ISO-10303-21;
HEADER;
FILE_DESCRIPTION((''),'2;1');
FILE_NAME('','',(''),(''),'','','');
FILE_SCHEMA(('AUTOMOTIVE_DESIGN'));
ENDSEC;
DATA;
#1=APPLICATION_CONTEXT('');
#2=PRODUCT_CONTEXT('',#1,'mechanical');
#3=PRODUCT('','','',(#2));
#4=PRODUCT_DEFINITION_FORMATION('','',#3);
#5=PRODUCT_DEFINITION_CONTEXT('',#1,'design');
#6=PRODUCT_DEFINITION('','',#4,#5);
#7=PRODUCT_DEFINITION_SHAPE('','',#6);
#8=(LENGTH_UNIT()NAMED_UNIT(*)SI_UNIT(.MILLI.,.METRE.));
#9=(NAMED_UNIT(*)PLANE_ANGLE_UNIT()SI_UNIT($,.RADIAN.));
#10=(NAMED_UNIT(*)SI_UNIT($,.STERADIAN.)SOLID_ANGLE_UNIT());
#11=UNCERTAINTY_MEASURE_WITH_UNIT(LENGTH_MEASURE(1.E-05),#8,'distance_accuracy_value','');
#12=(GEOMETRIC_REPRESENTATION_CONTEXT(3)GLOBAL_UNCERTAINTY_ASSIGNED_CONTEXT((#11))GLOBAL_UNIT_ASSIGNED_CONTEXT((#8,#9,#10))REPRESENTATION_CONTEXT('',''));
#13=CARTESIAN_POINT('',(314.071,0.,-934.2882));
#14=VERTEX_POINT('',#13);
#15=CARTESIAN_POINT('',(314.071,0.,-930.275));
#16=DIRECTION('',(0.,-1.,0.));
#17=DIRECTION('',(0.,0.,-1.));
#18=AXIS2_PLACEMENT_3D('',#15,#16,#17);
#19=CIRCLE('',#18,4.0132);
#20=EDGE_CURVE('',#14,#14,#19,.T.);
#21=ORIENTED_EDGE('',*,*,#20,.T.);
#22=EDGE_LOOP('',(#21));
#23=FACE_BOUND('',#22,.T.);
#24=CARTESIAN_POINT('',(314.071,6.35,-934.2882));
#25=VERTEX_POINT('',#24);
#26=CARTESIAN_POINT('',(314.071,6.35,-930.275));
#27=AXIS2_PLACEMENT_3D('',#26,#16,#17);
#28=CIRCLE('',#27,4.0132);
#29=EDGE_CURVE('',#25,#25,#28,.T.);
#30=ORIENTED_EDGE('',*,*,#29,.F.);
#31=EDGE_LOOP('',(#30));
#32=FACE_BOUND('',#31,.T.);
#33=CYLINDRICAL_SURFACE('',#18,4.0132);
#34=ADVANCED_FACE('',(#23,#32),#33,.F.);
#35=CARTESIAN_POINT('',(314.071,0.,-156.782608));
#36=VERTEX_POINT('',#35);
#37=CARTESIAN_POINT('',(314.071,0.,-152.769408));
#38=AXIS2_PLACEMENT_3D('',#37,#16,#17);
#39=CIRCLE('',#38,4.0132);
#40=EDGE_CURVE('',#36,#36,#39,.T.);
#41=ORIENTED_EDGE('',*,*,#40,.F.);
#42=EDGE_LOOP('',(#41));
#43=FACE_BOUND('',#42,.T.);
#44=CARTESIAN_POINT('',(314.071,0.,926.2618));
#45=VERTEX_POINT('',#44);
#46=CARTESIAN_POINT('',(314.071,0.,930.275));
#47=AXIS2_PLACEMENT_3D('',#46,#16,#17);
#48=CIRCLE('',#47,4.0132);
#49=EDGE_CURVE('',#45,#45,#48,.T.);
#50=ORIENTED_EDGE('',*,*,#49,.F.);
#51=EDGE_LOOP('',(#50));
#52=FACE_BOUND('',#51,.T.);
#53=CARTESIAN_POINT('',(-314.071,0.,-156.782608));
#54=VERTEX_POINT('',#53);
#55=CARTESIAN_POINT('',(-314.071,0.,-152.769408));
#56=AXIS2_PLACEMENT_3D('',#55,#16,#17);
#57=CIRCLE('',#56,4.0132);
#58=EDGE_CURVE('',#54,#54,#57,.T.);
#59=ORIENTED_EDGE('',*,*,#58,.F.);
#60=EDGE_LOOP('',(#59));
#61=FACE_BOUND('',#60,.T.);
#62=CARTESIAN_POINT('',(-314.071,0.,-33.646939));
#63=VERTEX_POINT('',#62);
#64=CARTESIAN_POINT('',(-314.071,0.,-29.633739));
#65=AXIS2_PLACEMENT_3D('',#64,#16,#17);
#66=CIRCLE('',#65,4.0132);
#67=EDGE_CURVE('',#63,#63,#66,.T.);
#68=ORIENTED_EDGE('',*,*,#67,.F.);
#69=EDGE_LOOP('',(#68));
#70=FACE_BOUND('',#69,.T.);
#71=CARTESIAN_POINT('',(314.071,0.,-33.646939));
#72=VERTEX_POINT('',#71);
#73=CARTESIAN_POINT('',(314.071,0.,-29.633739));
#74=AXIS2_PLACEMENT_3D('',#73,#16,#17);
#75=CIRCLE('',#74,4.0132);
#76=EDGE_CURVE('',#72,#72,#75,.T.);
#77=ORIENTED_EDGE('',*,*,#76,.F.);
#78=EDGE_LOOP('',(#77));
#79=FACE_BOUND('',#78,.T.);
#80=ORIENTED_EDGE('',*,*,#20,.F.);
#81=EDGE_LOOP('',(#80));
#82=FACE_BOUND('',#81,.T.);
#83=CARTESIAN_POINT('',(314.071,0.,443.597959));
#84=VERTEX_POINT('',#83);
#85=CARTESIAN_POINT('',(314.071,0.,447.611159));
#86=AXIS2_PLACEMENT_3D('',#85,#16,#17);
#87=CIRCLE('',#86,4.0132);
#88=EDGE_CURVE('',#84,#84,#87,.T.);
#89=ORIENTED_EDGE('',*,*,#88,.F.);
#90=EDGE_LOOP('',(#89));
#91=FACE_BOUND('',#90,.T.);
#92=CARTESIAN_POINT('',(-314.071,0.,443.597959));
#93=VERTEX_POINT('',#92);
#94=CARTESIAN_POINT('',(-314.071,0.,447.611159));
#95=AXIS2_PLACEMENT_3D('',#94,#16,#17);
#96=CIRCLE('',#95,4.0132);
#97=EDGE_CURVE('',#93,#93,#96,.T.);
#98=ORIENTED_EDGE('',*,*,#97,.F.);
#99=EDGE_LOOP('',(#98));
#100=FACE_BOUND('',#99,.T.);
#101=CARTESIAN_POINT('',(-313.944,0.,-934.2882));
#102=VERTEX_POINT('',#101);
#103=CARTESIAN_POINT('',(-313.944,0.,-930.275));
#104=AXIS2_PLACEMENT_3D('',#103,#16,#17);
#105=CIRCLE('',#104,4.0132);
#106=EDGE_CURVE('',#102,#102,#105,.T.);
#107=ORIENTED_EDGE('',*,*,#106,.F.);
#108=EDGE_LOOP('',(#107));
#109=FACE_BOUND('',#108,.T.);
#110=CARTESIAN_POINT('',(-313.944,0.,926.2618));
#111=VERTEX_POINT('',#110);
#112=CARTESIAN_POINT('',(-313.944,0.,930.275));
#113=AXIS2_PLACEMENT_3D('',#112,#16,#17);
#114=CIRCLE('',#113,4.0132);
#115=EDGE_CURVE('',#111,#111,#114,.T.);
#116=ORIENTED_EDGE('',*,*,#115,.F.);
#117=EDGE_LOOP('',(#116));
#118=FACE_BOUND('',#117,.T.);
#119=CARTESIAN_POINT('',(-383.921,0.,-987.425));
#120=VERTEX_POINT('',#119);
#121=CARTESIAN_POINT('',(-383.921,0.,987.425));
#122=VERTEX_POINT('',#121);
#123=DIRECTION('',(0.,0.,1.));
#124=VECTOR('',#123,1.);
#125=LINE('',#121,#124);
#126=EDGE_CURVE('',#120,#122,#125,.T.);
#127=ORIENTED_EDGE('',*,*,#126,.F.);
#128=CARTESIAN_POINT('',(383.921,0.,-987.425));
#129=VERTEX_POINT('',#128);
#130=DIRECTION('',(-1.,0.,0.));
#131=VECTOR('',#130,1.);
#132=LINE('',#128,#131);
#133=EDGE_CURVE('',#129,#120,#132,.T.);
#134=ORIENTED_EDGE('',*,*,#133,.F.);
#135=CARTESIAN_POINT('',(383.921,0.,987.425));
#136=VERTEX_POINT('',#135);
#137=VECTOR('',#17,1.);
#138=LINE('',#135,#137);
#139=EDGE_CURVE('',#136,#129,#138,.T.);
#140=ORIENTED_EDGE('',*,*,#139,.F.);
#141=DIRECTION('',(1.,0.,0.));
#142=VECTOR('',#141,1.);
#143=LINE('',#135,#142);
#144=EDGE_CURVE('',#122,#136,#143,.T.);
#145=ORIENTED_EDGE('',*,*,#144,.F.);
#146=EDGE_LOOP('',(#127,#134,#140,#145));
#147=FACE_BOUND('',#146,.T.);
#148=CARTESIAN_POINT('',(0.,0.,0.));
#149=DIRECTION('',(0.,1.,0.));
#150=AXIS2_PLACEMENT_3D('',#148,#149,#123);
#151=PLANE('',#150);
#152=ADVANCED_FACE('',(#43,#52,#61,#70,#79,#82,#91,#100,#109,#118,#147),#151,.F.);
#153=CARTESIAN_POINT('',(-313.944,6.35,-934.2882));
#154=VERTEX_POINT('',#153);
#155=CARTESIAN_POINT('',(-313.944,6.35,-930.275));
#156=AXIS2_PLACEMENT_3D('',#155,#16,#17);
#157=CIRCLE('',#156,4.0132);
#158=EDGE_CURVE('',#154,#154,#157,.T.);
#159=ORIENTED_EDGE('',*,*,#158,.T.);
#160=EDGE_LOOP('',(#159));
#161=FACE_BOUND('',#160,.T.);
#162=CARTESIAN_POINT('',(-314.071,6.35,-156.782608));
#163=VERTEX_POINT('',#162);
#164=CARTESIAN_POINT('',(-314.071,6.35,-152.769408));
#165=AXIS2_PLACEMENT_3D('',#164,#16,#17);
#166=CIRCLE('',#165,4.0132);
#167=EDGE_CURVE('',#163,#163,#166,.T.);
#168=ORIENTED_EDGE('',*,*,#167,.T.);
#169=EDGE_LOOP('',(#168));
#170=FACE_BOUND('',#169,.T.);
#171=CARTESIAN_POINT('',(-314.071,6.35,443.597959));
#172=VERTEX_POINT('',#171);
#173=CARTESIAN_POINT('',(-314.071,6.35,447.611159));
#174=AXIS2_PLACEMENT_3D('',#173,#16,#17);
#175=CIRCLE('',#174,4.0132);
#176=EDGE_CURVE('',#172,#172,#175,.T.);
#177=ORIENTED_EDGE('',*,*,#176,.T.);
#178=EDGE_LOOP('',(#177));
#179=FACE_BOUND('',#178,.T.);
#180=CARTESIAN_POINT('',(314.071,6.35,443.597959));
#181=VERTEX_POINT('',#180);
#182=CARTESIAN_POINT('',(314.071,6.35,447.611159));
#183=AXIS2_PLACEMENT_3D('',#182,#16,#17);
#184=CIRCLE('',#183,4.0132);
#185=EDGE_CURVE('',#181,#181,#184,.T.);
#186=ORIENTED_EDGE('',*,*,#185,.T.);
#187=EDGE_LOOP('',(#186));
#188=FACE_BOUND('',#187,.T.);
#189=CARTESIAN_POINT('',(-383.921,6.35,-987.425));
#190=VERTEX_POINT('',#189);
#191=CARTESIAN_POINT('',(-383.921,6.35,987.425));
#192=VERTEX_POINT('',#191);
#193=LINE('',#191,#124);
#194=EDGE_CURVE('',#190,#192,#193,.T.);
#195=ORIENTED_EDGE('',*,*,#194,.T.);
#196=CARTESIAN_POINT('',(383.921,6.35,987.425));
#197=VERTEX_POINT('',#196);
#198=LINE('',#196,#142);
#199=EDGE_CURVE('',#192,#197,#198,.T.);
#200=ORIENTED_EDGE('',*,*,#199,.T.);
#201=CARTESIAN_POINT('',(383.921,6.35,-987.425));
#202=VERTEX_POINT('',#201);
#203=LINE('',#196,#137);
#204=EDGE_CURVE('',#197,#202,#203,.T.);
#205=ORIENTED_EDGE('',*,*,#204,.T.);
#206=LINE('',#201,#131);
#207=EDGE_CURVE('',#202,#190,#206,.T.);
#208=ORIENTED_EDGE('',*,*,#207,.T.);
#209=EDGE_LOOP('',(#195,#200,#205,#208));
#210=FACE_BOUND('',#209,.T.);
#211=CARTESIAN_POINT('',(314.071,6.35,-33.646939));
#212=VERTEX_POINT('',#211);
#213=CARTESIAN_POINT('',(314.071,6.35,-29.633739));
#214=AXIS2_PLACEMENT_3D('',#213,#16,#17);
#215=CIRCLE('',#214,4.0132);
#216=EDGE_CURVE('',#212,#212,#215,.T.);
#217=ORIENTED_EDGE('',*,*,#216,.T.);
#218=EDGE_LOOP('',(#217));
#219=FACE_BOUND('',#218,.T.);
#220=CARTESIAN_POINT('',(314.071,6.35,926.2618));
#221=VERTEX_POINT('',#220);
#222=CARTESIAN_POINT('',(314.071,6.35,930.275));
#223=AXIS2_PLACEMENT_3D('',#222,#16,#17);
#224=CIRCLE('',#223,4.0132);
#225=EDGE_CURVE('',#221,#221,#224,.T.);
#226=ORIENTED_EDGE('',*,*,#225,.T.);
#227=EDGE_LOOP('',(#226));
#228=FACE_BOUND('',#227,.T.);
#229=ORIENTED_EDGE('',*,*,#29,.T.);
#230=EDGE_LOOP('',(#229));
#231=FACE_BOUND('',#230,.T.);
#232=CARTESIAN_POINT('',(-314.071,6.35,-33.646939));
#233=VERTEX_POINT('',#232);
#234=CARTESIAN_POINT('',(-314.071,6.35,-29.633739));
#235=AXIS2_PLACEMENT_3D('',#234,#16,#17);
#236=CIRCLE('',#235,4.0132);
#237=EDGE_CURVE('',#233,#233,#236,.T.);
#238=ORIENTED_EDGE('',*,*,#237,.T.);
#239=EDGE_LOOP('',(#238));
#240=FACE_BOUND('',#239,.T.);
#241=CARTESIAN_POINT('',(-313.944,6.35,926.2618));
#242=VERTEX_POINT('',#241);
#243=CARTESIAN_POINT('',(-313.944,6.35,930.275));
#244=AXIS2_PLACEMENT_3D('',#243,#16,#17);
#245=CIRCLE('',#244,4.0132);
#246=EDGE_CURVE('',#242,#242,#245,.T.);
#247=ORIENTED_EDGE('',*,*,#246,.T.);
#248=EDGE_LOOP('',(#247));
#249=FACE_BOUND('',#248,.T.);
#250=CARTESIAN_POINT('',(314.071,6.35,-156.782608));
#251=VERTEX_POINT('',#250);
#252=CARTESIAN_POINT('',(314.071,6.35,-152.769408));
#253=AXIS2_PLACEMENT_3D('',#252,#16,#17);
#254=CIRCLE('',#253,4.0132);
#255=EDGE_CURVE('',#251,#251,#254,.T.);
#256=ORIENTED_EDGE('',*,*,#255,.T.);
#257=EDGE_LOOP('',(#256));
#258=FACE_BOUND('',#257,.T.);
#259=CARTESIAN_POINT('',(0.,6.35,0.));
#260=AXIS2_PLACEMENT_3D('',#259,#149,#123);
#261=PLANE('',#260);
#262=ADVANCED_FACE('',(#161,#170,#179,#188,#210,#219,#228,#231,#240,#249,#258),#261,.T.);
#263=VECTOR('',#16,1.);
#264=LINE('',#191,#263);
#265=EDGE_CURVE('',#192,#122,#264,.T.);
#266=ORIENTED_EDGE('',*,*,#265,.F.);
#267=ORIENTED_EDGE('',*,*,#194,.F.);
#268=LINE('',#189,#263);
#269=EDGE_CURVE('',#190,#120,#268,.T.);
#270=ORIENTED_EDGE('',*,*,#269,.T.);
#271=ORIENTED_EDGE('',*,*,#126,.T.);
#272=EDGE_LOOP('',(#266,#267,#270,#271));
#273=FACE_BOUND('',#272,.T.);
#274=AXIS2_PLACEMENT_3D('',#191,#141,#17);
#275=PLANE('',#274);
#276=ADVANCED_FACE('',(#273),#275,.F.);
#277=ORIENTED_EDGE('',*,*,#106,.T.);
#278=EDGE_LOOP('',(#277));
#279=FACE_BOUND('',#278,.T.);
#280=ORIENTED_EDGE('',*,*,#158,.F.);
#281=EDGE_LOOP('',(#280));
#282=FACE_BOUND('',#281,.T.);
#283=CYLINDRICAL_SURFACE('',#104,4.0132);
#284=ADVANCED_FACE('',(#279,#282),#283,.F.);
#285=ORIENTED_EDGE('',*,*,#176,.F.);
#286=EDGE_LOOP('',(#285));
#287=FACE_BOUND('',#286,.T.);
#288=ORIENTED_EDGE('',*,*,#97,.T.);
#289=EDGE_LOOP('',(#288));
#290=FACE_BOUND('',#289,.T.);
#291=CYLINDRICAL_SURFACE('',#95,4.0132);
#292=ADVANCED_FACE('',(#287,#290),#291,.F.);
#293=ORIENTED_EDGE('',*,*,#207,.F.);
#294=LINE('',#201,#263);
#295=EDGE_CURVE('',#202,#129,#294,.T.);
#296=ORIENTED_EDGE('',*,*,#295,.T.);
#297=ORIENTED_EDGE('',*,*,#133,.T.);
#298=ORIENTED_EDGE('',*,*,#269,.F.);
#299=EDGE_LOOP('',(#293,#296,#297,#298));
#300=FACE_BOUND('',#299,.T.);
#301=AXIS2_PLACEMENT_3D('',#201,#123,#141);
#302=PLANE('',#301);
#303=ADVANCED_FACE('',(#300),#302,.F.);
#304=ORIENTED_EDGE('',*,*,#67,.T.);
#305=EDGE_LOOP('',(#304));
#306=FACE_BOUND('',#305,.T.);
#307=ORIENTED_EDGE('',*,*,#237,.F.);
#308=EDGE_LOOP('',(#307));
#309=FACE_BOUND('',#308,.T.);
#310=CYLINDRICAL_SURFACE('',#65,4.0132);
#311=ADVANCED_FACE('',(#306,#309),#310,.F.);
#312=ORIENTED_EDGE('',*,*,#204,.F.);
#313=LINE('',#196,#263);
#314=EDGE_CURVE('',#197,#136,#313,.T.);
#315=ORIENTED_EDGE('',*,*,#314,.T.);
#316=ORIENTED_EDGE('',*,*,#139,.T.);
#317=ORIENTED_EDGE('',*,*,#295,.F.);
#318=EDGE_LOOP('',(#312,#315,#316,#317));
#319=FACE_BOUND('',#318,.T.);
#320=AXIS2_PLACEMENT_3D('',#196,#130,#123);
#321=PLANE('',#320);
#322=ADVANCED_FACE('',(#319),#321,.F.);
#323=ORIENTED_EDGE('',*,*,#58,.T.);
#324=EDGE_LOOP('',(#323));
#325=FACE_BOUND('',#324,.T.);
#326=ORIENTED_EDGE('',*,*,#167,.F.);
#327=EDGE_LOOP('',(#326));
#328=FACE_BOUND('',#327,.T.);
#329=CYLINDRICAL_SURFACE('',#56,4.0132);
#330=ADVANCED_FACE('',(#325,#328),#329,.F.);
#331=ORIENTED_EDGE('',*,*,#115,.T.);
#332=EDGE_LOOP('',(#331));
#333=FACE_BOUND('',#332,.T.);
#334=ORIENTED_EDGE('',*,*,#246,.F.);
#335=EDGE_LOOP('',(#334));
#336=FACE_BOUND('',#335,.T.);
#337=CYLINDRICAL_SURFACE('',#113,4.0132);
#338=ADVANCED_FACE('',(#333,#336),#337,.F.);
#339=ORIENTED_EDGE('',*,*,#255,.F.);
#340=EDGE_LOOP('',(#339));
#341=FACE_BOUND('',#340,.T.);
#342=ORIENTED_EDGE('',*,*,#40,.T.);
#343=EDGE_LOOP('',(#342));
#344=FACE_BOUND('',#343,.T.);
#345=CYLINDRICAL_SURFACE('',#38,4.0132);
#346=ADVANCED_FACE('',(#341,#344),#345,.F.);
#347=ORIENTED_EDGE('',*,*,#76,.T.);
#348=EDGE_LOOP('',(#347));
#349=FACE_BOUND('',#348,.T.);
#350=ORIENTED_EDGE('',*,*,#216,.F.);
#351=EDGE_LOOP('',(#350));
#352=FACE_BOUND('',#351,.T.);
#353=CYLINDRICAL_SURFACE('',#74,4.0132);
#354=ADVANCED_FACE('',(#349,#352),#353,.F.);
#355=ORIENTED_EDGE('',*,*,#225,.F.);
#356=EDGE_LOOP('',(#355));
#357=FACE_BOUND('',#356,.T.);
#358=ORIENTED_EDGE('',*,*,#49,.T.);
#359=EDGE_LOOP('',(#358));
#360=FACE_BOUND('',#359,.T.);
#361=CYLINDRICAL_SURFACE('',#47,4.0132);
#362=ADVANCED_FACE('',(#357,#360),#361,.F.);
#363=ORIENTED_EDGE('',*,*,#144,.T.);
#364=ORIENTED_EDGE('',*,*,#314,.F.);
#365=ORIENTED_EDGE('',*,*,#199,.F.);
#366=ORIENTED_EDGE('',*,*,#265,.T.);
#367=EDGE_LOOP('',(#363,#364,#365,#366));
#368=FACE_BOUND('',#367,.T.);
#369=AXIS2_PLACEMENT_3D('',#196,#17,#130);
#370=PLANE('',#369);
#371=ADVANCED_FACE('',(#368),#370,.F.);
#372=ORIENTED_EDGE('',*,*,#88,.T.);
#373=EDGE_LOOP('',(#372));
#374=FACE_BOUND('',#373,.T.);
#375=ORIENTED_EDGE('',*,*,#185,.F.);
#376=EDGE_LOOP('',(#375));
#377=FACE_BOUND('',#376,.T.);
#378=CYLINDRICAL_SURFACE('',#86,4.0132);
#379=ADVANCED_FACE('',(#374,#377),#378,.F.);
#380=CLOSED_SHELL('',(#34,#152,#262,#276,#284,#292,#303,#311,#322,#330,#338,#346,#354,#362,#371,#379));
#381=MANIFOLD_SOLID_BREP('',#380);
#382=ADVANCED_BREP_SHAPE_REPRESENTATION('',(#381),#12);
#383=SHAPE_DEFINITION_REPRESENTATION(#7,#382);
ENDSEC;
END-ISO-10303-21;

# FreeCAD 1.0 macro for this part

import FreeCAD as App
import Part
import Sketcher
from FreeCAD import Vector
Q = App.Units.Quantity

doc = App.newDocument("Part")
params = doc.addObject("Spreadsheet::Sheet", "Params")
for row, (alias, value) in enumerate([
    ("sketch1_width", "30.23 in"),
    ("sketch1_height", "77.75 in"),
    ("pad1_length", "0.25 in"),
    ("sketch2_diameter", "0.316 in"),
    ("hole_diameter", "0.316 in"),
], start=1):
    params.set(f"A{row}", alias)
    params.set(f"B{row}", "=" + value)
    params.setAlias(f"B{row}", alias)

body = doc.addObject("PartDesign::Body", "Body")

# Sketch on XZ plane
sketch1 = doc.addObject("Sketcher::SketchObject", "Sketch")
body.addObject(sketch1)
sketch1.AttachmentSupport = (doc.XZ_Plane, [""])
sketch1.MapMode = "FlatFace"
sketch1.addGeometry(Part.LineSegment(Vector(-384, -987, 0), Vector(-384, 987, 0)), False)
sketch1.addGeometry(Part.LineSegment(Vector(-384, 987, 0), Vector(384, 987, 0)), False)
sketch1.addGeometry(Part.LineSegment(Vector(384, 987, 0), Vector(384, -987, 0)), False)
sketch1.addGeometry(Part.LineSegment(Vector(384, -987, 0), Vector(-384, -987, 0)), False)
sketch1.addConstraint(Sketcher.Constraint("Coincident", 0, 2, 1, 1))
sketch1.addConstraint(Sketcher.Constraint("Coincident", 1, 2, 2, 1))
sketch1.addConstraint(Sketcher.Constraint("Coincident", 2, 2, 3, 1))
sketch1.addConstraint(Sketcher.Constraint("Coincident", 3, 2, 0, 1))
sketch1.addConstraint(Sketcher.Constraint("Vertical", 0))
sketch1.addConstraint(Sketcher.Constraint("Horizontal", 1))
sketch1.addConstraint(Sketcher.Constraint("Vertical", 2))
sketch1.addConstraint(Sketcher.Constraint("Horizontal", 3))
sketch1.addConstraint(Sketcher.Constraint("Symmetric", 0, 2, 2, 2, -1, 1))
sketch1.addConstraint(Sketcher.Constraint("DistanceX", 1, 1, 1, 2, Q("30.23 in")))
sketch1.addConstraint(Sketcher.Constraint("DistanceY", 0, 1, 0, 2, Q("77.75 in")))
sketch1.setExpression("Constraints[9]", "Params.sketch1_width")
sketch1.setExpression("Constraints[10]", "Params.sketch1_height")
pad1 = doc.addObject("PartDesign::Pad", "Pad")
body.addObject(pad1)
pad1.Profile = sketch1
pad1.setExpression("Length", "Params.pad1_length")
pad1.Reversed = True

# Sketch on XZ plane
sketch2 = doc.addObject("Sketcher::SketchObject", "Sketch001")
body.addObject(sketch2)
sketch2.AttachmentSupport = (doc.XZ_Plane, [""])
sketch2.MapMode = "FlatFace"
sketch2.addGeometry(Part.Circle(Vector(314.1, 930.3, 0), Vector(0, 0, 1), 4), False)
sketch2.addGeometry(Part.Circle(Vector(-313.9, 930.3, 0), Vector(0, 0, 1), 4), False)
sketch2.addGeometry(Part.Circle(Vector(314.1, -29.6, 0), Vector(0, 0, 1), 4), False)
sketch2.addGeometry(Part.Circle(Vector(-314.1, -29.6, 0), Vector(0, 0, 1), 4), False)
sketch2.addGeometry(Part.Circle(Vector(-313.9, -930.3, 0), Vector(0, 0, 1), 4), False)
sketch2.addGeometry(Part.Circle(Vector(314.1, -930.3, 0), Vector(0, 0, 1), 4), False)
sketch2.addGeometry(Part.Circle(Vector(314.1, -152.8, 0), Vector(0, 0, 1), 4), False)
sketch2.addGeometry(Part.Circle(Vector(-314.1, -152.8, 0), Vector(0, 0, 1), 4), False)
sketch2.addGeometry(Part.Circle(Vector(314.1, 447.6, 0), Vector(0, 0, 1), 4), False)
sketch2.addGeometry(Part.Circle(Vector(-314.1, 447.6, 0), Vector(0, 0, 1), 4), False)
sketch2.addConstraint(Sketcher.Constraint("Equal", 0, 1))
sketch2.addConstraint(Sketcher.Constraint("Equal", 1, 2))
sketch2.addConstraint(Sketcher.Constraint("Equal", 2, 3))
sketch2.addConstraint(Sketcher.Constraint("Equal", 3, 4))
sketch2.addConstraint(Sketcher.Constraint("Equal", 4, 5))
sketch2.addConstraint(Sketcher.Constraint("Equal", 5, 6))
sketch2.addConstraint(Sketcher.Constraint("Equal", 6, 7))
sketch2.addConstraint(Sketcher.Constraint("Equal", 7, 8))
sketch2.addConstraint(Sketcher.Constraint("Equal", 8, 9))
sketch2.addConstraint(Sketcher.Constraint("Symmetric", 2, 3, 3, 3, -2))
sketch2.addConstraint(Sketcher.Constraint("Symmetric", 6, 3, 7, 3, -2))
sketch2.addConstraint(Sketcher.Constraint("Symmetric", 8, 3, 9, 3, -2))
sketch2.addConstraint(Sketcher.Constraint("Symmetric", 1, 3, 4, 3, -1))
sketch2.addConstraint(Sketcher.Constraint("Symmetric", 0, 3, 5, 3, -1))
sketch2.addConstraint(Sketcher.Constraint("Horizontal", 0, 3, 1, 3))
sketch2.addConstraint(Sketcher.Constraint("Vertical", 0, 3, 2, 3))
sketch2.addConstraint(Sketcher.Constraint("Vertical", 5, 3, 6, 3))
sketch2.addConstraint(Sketcher.Constraint("Vertical", 6, 3, 8, 3))
sketch2.addConstraint(Sketcher.Constraint("Diameter", 0, Q("0.316 in")))
sketch2.addConstraint(Sketcher.Constraint("DistanceX", 1, 3, -1, 1, Q("12.36 in")))
sketch2.addConstraint(Sketcher.Constraint("DistanceX", 3, 3, 2, 3, Q("24.73 in")))
sketch2.addConstraint(Sketcher.Constraint("DistanceY", 4, 3, 1, 3, Q("73.25 in")))
sketch2.addConstraint(Sketcher.Constraint("DistanceY", 2, 3, 8, 3, Q("477.244898 mm")))
sketch2.addConstraint(Sketcher.Constraint("DistanceY", 2, 3, -1, 1, Q("29.633739 mm")))
sketch2.addConstraint(Sketcher.Constraint("DistanceY", 6, 3, 2, 3, Q("123.135669 mm")))
sketch2.setExpression("Constraints[18]", "Params.sketch2_diameter")
doc.recompute()
hole = doc.addObject("PartDesign::Hole", "Hole")
body.addObject(hole)
hole.Profile = sketch2
hole.ThreadType = "None"
hole.setExpression("Diameter", "Params.hole_diameter")
hole.DepthType = "ThroughAll"

doc.recompute()
